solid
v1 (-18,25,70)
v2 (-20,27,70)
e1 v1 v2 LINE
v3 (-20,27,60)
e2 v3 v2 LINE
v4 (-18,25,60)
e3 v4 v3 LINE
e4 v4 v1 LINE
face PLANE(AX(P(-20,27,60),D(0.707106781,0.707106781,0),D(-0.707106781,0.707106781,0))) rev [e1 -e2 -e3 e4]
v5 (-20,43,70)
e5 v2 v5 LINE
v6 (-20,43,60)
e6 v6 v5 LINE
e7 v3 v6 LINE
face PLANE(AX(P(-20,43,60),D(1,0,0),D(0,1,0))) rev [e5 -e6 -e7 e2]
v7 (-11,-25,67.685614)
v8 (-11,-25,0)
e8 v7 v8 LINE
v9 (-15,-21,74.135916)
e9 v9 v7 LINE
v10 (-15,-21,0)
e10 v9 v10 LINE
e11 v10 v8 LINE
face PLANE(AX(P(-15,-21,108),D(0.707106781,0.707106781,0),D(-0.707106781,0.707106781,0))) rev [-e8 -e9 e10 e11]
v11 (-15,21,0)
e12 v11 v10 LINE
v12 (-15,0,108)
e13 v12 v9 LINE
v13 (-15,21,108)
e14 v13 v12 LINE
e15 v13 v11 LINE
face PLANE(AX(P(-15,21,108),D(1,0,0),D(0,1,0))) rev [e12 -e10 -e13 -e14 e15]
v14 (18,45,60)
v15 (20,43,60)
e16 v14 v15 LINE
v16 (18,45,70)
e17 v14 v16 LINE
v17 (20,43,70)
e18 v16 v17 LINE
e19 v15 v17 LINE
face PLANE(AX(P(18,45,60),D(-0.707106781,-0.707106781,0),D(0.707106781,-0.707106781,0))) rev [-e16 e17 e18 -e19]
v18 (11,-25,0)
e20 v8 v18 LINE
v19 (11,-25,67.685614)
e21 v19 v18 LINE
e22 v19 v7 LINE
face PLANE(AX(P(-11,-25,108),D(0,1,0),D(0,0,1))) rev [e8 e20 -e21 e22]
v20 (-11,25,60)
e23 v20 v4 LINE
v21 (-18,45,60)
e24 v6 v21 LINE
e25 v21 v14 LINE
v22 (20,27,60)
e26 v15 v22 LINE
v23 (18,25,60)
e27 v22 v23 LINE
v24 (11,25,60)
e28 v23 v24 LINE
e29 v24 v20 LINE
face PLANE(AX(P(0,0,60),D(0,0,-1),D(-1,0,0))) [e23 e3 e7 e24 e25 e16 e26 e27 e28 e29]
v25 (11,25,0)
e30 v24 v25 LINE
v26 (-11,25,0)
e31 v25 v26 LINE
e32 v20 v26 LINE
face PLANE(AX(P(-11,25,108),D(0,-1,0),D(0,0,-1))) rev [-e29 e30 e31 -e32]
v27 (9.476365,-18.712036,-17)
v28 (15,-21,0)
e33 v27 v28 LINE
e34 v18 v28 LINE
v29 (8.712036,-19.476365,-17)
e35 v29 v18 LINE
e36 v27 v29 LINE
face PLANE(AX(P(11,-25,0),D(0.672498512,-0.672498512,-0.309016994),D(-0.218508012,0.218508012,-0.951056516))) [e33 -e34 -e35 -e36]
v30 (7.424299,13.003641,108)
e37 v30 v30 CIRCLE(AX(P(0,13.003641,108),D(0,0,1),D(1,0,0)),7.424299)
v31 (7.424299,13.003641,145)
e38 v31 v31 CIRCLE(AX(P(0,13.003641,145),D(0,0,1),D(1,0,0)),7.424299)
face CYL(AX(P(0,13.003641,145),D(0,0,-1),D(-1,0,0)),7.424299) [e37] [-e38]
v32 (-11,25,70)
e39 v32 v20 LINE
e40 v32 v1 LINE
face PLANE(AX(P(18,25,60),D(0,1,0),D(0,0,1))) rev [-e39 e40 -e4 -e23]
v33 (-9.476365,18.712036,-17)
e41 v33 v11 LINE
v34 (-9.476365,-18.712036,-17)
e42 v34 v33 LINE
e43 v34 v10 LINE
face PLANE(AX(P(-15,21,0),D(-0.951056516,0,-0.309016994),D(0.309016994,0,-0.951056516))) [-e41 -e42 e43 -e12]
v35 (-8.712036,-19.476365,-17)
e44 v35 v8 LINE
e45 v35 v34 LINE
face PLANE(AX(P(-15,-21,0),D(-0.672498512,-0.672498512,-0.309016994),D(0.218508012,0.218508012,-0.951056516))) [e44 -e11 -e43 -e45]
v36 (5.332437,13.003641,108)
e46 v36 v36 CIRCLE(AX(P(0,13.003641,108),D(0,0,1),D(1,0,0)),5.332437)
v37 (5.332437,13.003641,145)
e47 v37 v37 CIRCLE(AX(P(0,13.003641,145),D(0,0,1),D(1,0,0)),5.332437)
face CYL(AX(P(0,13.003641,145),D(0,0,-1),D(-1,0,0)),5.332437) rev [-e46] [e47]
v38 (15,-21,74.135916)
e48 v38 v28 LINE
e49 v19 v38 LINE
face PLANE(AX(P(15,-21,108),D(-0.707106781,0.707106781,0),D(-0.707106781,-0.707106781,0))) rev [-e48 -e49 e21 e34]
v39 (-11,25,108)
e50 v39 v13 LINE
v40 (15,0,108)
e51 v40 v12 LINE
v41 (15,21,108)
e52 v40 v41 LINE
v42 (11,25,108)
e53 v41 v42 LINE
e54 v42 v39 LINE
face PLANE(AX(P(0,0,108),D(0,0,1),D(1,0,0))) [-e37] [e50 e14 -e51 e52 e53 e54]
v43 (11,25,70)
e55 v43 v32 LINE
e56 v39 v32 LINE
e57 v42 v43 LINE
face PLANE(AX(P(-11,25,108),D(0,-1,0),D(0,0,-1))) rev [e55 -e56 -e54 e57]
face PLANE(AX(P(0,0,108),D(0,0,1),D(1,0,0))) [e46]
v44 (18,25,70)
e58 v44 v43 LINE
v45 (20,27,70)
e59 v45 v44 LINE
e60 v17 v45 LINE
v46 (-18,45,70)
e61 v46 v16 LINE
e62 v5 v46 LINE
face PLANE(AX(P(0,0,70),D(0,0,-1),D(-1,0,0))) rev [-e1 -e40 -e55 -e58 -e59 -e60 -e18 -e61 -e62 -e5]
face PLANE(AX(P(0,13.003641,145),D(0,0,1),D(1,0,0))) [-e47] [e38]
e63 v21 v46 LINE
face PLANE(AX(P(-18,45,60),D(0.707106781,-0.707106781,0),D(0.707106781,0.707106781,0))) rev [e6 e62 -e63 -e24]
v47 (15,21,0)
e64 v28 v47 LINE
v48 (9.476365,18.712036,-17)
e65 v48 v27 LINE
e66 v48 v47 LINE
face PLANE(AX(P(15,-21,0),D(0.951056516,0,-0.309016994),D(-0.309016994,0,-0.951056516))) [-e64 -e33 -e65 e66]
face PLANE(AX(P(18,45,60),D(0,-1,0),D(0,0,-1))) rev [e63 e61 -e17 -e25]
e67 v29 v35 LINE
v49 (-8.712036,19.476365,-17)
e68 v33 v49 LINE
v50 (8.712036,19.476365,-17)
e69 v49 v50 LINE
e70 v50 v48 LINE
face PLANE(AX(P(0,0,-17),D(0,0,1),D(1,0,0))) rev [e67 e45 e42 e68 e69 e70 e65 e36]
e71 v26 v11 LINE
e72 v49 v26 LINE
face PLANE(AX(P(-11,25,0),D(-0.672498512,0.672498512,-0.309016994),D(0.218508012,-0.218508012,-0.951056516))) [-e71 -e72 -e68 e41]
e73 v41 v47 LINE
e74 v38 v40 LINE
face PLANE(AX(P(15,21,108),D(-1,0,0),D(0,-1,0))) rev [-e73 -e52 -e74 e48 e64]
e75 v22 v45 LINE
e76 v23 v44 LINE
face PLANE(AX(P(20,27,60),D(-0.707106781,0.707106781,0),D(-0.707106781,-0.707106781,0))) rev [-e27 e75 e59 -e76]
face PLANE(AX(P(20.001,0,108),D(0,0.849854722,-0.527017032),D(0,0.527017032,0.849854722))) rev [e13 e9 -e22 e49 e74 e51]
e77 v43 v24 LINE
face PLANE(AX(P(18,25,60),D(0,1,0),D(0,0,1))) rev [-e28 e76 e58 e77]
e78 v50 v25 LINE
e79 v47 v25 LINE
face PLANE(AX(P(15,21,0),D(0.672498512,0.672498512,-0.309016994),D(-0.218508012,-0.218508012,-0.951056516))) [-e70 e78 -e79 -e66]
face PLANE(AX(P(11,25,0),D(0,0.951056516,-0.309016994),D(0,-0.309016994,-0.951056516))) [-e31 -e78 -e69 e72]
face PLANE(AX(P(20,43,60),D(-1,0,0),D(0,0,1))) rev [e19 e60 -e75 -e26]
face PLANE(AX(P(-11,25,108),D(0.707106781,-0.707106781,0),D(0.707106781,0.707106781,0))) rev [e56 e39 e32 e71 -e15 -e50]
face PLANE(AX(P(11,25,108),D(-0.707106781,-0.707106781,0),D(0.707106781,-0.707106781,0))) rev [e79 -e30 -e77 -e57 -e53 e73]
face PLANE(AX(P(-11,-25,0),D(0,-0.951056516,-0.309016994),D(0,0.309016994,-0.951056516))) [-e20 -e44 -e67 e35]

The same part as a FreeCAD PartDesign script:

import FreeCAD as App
import Part
import Sketcher
from FreeCAD import Vector


def add_polygon(sketch, points):
    """Adds a closed chain of lines whose ends are joined by coincident constraints."""
    first, n = sketch.GeometryCount, len(points)
    for a, b in zip(points, points[1:] + points[:1]):
        sketch.addGeometry(Part.LineSegment(App.Vector(*a, 0), App.Vector(*b, 0)), False)
    for i in range(n):
        sketch.addConstraint(Sketcher.Constraint("Coincident", first + i, 2, first + (i + 1) % n, 1))

doc = App.newDocument("Part")
body = doc.addObject("PartDesign::Body", "Body")

# Sketch on XY plane
sketch1 = doc.addObject("Sketcher::SketchObject", "Sketch")
body.addObject(sketch1)
sketch1.AttachmentSupport = (doc.XY_Plane, [""])
sketch1.MapMode = "FlatFace"
add_polygon(sketch1, [(-11, 25), (-15, 21), (-15, -21), (-11, -25), (11, -25), (15, -21), (15, 21), (11, 25)])  # lines 0-7
sketch1.addConstraint([
    Sketcher.Constraint("Vertical", 1),
    Sketcher.Constraint("Horizontal", 3),
    Sketcher.Constraint("Vertical", 5),
    Sketcher.Constraint("Horizontal", 7),
    Sketcher.Constraint("Symmetric", 0, 2, 4, 2, -1, 1),
    Sketcher.Constraint("Symmetric", 2, 2, 6, 2, -1, 1),
    Sketcher.Constraint("Perpendicular", 0, 2),
    Sketcher.Constraint("Perpendicular", 2, 4),
    Sketcher.Constraint("Perpendicular", 4, 6),
    Sketcher.Constraint("Horizontal", 1, 2, 4, 2),
    Sketcher.Constraint("Vertical", 3, 2, 6, 2),
    Sketcher.Constraint("DistanceX", 3, 1, 3, 2, 22.0),
    Sketcher.Constraint("DistanceY", 1, 2, 1, 1, 42.0),
    Sketcher.Constraint("DistanceX", 0, 2, -1, 1, 15.0),
])
pad1 = doc.addObject("PartDesign::Pad", "Pad")
body.addObject(pad1)
pad1.Profile = sketch1
pad1.Length = 108

# Sketch on XY plane
sketch2 = doc.addObject("Sketcher::SketchObject", "Sketch001")
body.addObject(sketch2)
sketch2.AttachmentSupport = (doc.XY_Plane, [""])
sketch2.MapMode = "FlatFace"
sketch2.AttachmentOffset = App.Placement(Vector(0, 0, 108), App.Rotation())
sketch2.addGeometry([
    Part.Circle(Vector(0, 13, 0), Vector(0, 0, 1), 7),
    Part.Circle(Vector(0, 13, 0), Vector(0, 0, 1), 5),
], False)
sketch2.addConstraint([
    Sketcher.Constraint("Coincident", 1, 3, 0, 3),
    Sketcher.Constraint("PointOnObject", 0, 3, -2),
    Sketcher.Constraint("Diameter", 0, 14.848597),
    Sketcher.Constraint("Diameter", 1, 10.664874),
    Sketcher.Constraint("DistanceY", -1, 1, 0, 3, 13.003641),
])
pad2 = doc.addObject("PartDesign::Pad", "Pad001")
body.addObject(pad2)
pad2.Profile = sketch2
pad2.Length = 37

# Sketch on XY plane
sketch3 = doc.addObject("Sketcher::SketchObject", "Sketch002")
body.addObject(sketch3)
sketch3.AttachmentSupport = (doc.XY_Plane, [""])
sketch3.MapMode = "FlatFace"
sketch3.AttachmentOffset = App.Placement(Vector(0, 0, 70), App.Rotation())
add_polygon(sketch3, [(-18, 45), (18, 45), (20, 43), (20, 27), (18, 25), (-18, 25), (-20, 27), (-20, 43)])  # lines 0-7
sketch3.addConstraint([
    Sketcher.Constraint("Horizontal", 0),
    Sketcher.Constraint("Vertical", 2),
    Sketcher.Constraint("Horizontal", 4),
    Sketcher.Constraint("Vertical", 6),
    Sketcher.Constraint("Symmetric", 2, 2, 5, 2, -2),
    Sketcher.Constraint("Perpendicular", 1, 3),
    Sketcher.Constraint("Perpendicular", 3, 5),
    Sketcher.Constraint("Perpendicular", 5, 7),
    Sketcher.Constraint("Horizontal", 1, 2, 6, 2),
    Sketcher.Constraint("Vertical", 0, 2, 3, 2),
    Sketcher.Constraint("Vertical", 4, 2, 7, 2),
    Sketcher.Constraint("DistanceX", 0, 1, 0, 2, 36.0),
    Sketcher.Constraint("DistanceY", 2, 2, 2, 1, 16.0),
    Sketcher.Constraint("DistanceY", -1, 1, 0, 2, 45.0),
    Sketcher.Constraint("DistanceX", -1, 1, 1, 2, 20.0),
])
pad3 = doc.addObject("PartDesign::Pad", "Pad002")
body.addObject(pad3)
pad3.Profile = sketch3
pad3.Length = 10
pad3.Reversed = True

# Sketch on YZ plane
sketch4 = doc.addObject("Sketcher::SketchObject", "Sketch003")
body.addObject(sketch4)
sketch4.AttachmentSupport = (doc.YZ_Plane, [""])
sketch4.MapMode = "FlatFace"
sketch4.AttachmentOffset = App.Placement(Vector(0, 0, -15), App.Rotation())
add_polygon(sketch4, [(0, 108), (-25, 68), (-25, 108)])  # lines 0-2
sketch4.addConstraint([
    Sketcher.Constraint("Vertical", 1),
    Sketcher.Constraint("Horizontal", 2),
    Sketcher.Constraint("PointOnObject", 2, 2, -2),
    Sketcher.Constraint("DistanceX", 2, 1, 2, 2, 25.0),
    Sketcher.Constraint("DistanceY", -1, 1, 1, 2, 108.0),
    Sketcher.Constraint("DistanceY", 1, 1, 1, 2, 40.314386),
])
pocket1 = doc.addObject("PartDesign::Pocket", "Pocket")
body.addObject(pocket1)
pocket1.Profile = sketch4
pocket1.Type = "UpToFirst"
pocket1.Reversed = True

# Sketch on XY plane
sketch5 = doc.addObject("Sketcher::SketchObject", "Sketch004")
body.addObject(sketch5)
sketch5.AttachmentSupport = (doc.XY_Plane, [""])
sketch5.MapMode = "FlatFace"
add_polygon(sketch5, [(15, 21), (15, -21), (11, -25), (-11, -25), (-15, -21), (-15, 21), (-11, 25), (11, 25)])  # lines 0-7
sketch5.addConstraint([
    Sketcher.Constraint("Vertical", 0),
    Sketcher.Constraint("Horizontal", 2),
    Sketcher.Constraint("Vertical", 4),
    Sketcher.Constraint("Horizontal", 6),
    Sketcher.Constraint("Symmetric", 0, 2, 4, 2, -1, 1),
    Sketcher.Constraint("Symmetric", 1, 2, 5, 2, -1, 1),
    Sketcher.Constraint("Perpendicular", 1, 3),
    Sketcher.Constraint("Perpendicular", 5, 7),
    Sketcher.Constraint("Horizontal", 0, 2, 3, 2),
    Sketcher.Constraint("Horizontal", 4, 2, 7, 2),
    Sketcher.Constraint("Vertical", 2, 2, 5, 2),
    Sketcher.Constraint("DistanceX", 2, 2, 2, 1, 22.0),
    Sketcher.Constraint("DistanceY", 0, 2, 0, 1, 42.0),
    Sketcher.Constraint("DistanceX", -1, 1, 0, 2, 15.0),
])
pad4 = doc.addObject("PartDesign::Pad", "Pad003")
body.addObject(pad4)
pad4.Profile = sketch5
pad4.Length = 17
pad4.Reversed = True
pad4.TaperAngle = -18

doc.recompute()
